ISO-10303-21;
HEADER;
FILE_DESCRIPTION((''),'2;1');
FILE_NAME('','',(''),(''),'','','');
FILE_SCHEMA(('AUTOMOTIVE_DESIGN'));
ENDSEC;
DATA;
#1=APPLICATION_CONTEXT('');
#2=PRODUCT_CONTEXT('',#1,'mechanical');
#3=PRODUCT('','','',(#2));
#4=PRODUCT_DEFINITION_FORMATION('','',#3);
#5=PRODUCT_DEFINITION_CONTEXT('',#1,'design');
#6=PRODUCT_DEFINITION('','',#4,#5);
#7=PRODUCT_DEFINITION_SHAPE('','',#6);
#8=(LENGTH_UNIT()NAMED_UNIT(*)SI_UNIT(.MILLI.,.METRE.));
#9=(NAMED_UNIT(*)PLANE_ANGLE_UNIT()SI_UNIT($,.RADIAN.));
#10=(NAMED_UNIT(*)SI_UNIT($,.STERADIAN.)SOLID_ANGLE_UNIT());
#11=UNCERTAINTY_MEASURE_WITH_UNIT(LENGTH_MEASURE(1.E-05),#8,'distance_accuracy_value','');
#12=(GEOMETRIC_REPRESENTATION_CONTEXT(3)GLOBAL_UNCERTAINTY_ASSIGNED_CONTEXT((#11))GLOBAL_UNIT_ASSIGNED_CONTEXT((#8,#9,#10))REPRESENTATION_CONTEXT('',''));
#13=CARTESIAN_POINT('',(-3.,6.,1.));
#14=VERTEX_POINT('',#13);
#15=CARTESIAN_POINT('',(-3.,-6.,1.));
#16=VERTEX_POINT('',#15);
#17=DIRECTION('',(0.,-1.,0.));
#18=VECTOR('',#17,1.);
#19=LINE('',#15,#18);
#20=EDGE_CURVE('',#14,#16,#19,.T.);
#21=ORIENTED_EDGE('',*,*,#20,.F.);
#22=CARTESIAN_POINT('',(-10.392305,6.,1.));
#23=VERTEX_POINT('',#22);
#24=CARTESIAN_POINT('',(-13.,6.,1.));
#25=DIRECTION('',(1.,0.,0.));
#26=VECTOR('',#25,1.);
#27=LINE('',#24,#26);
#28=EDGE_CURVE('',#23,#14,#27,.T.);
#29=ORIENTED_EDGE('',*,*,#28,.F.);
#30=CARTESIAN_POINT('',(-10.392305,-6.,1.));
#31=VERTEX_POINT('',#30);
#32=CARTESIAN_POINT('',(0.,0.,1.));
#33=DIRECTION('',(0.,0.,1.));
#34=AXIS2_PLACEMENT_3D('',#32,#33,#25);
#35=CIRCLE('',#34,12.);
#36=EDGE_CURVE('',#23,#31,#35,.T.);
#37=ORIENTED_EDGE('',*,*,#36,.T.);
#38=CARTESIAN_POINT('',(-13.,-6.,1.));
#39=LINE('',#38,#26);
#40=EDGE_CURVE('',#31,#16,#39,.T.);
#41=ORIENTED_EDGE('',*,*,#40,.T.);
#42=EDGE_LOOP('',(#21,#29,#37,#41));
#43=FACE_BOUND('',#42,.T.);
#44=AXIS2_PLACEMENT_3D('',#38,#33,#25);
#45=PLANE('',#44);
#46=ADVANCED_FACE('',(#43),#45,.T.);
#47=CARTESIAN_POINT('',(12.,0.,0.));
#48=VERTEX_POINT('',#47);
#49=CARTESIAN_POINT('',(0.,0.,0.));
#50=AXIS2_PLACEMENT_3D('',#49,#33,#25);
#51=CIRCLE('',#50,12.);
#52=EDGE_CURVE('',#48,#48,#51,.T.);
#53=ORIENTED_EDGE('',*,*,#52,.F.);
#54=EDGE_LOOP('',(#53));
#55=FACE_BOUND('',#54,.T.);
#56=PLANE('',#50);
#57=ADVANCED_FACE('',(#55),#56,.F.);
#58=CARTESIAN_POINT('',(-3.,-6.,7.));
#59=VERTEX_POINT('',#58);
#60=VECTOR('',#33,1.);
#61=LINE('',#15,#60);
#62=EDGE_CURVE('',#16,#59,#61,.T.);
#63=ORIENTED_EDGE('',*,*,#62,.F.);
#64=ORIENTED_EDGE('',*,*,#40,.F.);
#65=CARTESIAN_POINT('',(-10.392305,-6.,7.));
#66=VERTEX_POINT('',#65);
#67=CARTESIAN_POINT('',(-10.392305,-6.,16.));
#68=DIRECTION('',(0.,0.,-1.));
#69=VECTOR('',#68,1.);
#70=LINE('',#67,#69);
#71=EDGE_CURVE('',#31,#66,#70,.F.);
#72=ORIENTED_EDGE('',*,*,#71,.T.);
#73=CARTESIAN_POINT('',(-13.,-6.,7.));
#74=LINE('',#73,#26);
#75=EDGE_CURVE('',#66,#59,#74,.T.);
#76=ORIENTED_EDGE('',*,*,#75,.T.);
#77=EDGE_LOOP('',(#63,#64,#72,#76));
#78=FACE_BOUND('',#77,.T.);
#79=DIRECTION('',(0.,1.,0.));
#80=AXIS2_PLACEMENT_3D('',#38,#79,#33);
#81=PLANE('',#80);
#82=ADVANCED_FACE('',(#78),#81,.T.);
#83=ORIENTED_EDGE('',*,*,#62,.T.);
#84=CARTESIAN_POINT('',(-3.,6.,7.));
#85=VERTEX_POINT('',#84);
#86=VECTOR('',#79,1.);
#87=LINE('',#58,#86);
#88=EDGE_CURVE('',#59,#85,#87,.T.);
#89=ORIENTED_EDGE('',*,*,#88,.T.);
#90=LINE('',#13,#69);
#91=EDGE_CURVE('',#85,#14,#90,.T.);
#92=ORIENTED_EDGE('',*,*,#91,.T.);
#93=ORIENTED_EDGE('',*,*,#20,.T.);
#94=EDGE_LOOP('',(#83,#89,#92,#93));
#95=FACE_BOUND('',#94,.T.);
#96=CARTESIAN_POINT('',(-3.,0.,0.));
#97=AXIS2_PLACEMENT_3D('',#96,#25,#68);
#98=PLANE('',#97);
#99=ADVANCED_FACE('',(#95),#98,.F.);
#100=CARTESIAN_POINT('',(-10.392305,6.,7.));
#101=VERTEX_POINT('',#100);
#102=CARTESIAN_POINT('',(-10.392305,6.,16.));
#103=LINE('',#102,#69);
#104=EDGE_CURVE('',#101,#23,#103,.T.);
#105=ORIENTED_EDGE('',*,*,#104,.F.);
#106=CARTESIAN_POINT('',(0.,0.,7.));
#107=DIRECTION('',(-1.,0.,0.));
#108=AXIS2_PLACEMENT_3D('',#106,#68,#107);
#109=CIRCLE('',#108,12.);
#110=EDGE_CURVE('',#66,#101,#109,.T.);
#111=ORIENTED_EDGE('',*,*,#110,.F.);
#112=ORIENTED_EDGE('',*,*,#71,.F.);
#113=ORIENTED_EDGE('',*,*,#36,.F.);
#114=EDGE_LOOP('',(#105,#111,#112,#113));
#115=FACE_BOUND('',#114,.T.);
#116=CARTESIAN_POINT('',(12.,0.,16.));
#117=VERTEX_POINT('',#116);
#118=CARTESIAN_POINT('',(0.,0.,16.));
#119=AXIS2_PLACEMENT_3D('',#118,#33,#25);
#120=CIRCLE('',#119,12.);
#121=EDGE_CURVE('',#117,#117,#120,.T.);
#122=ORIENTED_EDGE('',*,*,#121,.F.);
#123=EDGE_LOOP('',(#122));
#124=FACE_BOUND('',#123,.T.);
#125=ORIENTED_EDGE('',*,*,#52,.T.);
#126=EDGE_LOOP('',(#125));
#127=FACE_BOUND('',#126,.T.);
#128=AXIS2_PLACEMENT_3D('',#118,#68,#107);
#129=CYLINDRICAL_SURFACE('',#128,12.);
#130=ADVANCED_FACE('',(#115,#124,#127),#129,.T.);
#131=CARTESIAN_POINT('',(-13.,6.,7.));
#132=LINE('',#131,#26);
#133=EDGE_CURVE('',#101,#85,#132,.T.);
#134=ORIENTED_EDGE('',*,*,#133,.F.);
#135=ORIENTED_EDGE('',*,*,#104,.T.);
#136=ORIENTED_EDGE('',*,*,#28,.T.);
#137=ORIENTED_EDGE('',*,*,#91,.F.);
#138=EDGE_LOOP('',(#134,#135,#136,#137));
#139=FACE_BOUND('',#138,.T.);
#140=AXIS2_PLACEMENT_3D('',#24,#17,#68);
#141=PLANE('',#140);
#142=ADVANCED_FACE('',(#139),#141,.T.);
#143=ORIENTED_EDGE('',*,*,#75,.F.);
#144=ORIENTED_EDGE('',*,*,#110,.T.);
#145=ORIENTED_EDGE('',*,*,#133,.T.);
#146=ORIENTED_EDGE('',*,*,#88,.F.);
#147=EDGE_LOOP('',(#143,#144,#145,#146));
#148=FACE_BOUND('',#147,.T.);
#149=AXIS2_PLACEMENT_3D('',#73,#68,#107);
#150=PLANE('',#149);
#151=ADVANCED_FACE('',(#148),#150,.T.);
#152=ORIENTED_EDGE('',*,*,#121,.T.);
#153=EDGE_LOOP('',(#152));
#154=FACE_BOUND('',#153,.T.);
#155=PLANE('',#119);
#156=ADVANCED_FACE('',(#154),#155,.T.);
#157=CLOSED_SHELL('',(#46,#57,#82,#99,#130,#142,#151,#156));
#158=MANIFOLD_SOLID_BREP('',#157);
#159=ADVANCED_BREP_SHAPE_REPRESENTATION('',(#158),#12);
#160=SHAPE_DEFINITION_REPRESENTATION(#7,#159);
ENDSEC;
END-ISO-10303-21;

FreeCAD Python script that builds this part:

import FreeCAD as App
import Part
import Sketcher

V = App.Vector

doc = App.newDocument("Part")
body = doc.addObject("PartDesign::Body", "Body")

# Sketch on XY plane
sketch1 = body.newObject("Sketcher::SketchObject", "Sketch")
sketch1.AttachmentSupport = (doc.getObject("XY_Plane"), [""])
sketch1.MapMode = "FlatFace"
sketch1.addGeometry(Part.Circle(V(0, 0, 0), V(0, 0, 1), 12), False)
sketch1.addConstraint([
    Sketcher.Constraint("Coincident", 0, 3, -1, 1),
    Sketcher.Constraint("Diameter", 0, 24.0),
])
pad1 = body.newObject("PartDesign::Pad", "Pad")
pad1.Profile = sketch1
pad1.Length = 16

# Sketch on YZ plane
sketch2 = body.newObject("Sketcher::SketchObject", "Sketch001")
sketch2.AttachmentSupport = (doc.getObject("YZ_Plane"), [""])
sketch2.MapMode = "FlatFace"
sketch2.AttachmentOffset = App.Placement(V(0, 0, -12), App.Rotation())
sketch2.addGeometry([
    Part.LineSegment(V(6, 1, 0), V(-6, 1, 0)),
    Part.LineSegment(V(-6, 1, 0), V(-6, 7, 0)),
    Part.LineSegment(V(-6, 7, 0), V(6, 7, 0)),
    Part.LineSegment(V(6, 7, 0), V(6, 1, 0)),
], False)
sketch2.addConstraint([
    Sketcher.Constraint("Coincident", 0, 2, 1, 1),
    Sketcher.Constraint("Coincident", 1, 2, 2, 1),
    Sketcher.Constraint("Coincident", 2, 2, 3, 1),
    Sketcher.Constraint("Coincident", 3, 2, 0, 1),
    Sketcher.Constraint("Horizontal", 0),
    Sketcher.Constraint("Vertical", 1),
    Sketcher.Constraint("Horizontal", 2),
    Sketcher.Constraint("Vertical", 3),
    Sketcher.Constraint("DistanceX", 0, 2, 0, 1, 12.0),
    Sketcher.Constraint("DistanceY", 1, 1, 1, 2, 6.0),
    Sketcher.Constraint("DistanceX", 0, 2, -1, 1, 6.0),
    Sketcher.Constraint("DistanceY", -1, 1, 0, 2, 1.0),
])
pocket1 = body.newObject("PartDesign::Pocket", "Pocket")
pocket1.Profile = sketch2
pocket1.Type = "TwoLengths"
pocket1.Length = 1
pocket1.Length2 = 9

doc.recompute()
